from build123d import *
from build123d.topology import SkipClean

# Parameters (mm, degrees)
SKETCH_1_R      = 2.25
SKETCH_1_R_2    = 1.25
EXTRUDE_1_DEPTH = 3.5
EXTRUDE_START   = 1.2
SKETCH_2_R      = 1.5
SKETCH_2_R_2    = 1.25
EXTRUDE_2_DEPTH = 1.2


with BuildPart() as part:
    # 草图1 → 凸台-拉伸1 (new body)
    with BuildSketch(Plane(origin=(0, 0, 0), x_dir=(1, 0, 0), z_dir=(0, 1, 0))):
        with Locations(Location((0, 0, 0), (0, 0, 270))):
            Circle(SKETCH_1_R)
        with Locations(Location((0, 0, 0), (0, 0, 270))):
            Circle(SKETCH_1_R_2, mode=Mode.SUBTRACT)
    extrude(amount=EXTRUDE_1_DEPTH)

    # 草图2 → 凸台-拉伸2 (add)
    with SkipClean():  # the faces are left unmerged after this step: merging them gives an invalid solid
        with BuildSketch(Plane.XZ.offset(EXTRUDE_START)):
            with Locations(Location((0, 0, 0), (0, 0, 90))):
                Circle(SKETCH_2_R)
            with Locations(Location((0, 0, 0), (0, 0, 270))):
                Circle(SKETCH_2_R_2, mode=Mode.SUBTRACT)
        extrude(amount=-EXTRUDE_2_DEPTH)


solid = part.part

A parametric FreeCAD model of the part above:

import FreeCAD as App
import Part
import Sketcher

V = App.Vector

doc = App.newDocument("Part")
body = doc.addObject("PartDesign::Body", "Body")

sketch1 = body.newObject("Sketcher::SketchObject", "Sketch")
sketch1.AttachmentSupport = (doc.getObject("XZ_Plane"), [""])
sketch1.MapMode = "FlatFace"
sketch1.addGeometry(Part.Circle(V(0, 0, 0), V(0, 0, 1), 2.25), False)
sketch1.addGeometry(Part.Circle(V(0, 0, 0), V(0, 0, 1), 1.25), False)
sketch1.addConstraint(Sketcher.Constraint("Coincident", 0, 3, -1, 1))
sketch1.addConstraint(Sketcher.Constraint("Coincident", 1, 3, -1, 1))
sketch1.addConstraint(Sketcher.Constraint("Diameter", 0, 4.5))
sketch1.addConstraint(Sketcher.Constraint("Diameter", 1, 2.5))
pad1 = body.newObject("PartDesign::Pad", "Pad")
pad1.Profile = sketch1
pad1.Length = 3.5
pad1.Reversed = True

sketch2 = body.newObject("Sketcher::SketchObject", "Sketch001")
sketch2.AttachmentSupport = (doc.getObject("XZ_Plane"), [""])
sketch2.MapMode = "FlatFace"
sketch2.AttachmentOffset = App.Placement(V(0, 0, 1.2), App.Rotation())
sketch2.addGeometry(Part.Circle(V(0, 0, 0), V(0, 0, 1), 1.5), False)
sketch2.addGeometry(Part.Circle(V(0, 0, 0), V(0, 0, 1), 1.25), False)
sketch2.addConstraint(Sketcher.Constraint("Coincident", 0, 3, -1, 1))
sketch2.addConstraint(Sketcher.Constraint("Coincident", 1, 3, -1, 1))
sketch2.addConstraint(Sketcher.Constraint("Diameter", 0, 3.0))
sketch2.addConstraint(Sketcher.Constraint("Diameter", 1, 2.5))
pad2 = body.newObject("PartDesign::Pad", "Pad001")
pad2.Profile = sketch2
pad2.Length = 1.2
pad2.Reversed = True

doc.recompute()
